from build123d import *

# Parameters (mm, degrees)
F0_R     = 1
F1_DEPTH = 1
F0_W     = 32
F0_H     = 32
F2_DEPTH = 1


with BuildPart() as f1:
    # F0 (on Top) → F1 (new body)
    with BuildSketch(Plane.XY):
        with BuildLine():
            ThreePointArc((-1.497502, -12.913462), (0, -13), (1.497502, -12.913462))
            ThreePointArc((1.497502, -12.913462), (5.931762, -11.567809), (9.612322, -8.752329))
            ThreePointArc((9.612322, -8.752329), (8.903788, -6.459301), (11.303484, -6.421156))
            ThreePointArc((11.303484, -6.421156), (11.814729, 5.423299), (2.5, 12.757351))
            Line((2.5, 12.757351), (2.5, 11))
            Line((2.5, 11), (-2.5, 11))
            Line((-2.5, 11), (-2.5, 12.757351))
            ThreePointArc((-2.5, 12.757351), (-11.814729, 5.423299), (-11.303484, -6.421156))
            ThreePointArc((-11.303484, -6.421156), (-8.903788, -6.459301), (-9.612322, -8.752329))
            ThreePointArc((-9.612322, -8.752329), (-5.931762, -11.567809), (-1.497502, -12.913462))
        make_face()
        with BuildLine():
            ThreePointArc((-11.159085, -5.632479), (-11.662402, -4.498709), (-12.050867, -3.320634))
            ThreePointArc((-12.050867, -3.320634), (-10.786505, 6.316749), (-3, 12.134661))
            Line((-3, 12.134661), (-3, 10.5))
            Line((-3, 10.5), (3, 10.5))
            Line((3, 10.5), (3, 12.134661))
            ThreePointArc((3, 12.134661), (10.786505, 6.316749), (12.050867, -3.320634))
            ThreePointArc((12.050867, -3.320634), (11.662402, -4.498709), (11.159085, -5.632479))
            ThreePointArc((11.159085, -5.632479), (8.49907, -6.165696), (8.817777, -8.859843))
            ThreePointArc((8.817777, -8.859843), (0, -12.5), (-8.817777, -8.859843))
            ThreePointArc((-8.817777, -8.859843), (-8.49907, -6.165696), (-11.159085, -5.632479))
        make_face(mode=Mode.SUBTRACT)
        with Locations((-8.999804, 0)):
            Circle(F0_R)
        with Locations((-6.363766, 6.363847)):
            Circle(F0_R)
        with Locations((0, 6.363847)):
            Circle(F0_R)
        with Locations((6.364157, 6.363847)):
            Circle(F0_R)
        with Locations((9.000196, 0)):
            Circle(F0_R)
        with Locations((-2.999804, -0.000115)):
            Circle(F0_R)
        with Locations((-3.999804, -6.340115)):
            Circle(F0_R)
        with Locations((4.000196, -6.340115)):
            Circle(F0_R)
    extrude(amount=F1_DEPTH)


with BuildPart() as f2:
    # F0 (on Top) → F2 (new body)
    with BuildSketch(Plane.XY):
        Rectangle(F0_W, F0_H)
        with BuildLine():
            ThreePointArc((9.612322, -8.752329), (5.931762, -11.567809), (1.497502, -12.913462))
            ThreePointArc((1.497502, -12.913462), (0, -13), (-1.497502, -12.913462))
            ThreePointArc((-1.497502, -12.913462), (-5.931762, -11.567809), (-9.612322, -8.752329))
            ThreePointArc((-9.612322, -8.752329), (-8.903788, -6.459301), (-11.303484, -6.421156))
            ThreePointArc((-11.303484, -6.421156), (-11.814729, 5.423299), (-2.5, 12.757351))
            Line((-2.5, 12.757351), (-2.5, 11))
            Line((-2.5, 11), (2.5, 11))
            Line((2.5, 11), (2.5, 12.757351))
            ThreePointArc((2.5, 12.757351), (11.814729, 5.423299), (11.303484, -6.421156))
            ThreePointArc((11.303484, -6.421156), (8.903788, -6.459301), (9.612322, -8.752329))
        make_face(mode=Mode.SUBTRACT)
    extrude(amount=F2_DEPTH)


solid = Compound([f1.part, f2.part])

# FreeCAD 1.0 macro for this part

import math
import FreeCAD as App
import Part
import Sketcher
from FreeCAD import Vector
Q = App.Units.Quantity

doc = App.newDocument("Part")
body = doc.addObject("PartDesign::Body", "Body")
body.AllowCompound = True

# Sketch on XY plane
sketch1 = body.newObject("Sketcher::SketchObject", "Sketch")
sketch1.AttachmentSupport = (doc.getObject("XY_Plane"), [""])
sketch1.MapMode = "FlatFace"
sketch1.addGeometry([
    Part.ArcOfCircle(Part.Circle(Vector(0, 0.000075, 0), Vector(0, 0, 1), 13.000075), math.radians(-96.614687), math.radians(-83.385313)),  # 0
    Part.ArcOfCircle(Part.Circle(Vector(-0.000001, -0.000001, 0), Vector(0, 0, 1), 13), math.radians(-83.385271), math.radians(-42.318867)),  # 1
    Part.ArcOfCircle(Part.Circle(Vector(10.11794, -7.340115, 0), Vector(0, 0, 1), 1.5), math.radians(37.78059), math.radians(250.300989)),  # 2
    Part.ArcOfCircle(Part.Circle(Vector(-0.000001, 0, 0), Vector(0, 0, 1), 13), math.radians(-29.599552), math.radians(78.912508)),  # 3
    Part.LineSegment(Vector(2.5, 12.757351, 0), Vector(2.5, 11, 0)),  # 4
    Part.LineSegment(Vector(2.5, 11, 0), Vector(-2.5, 11, 0)),  # 5
    Part.LineSegment(Vector(-2.5, 11, 0), Vector(-2.5, 12.757351, 0)),  # 6
    Part.ArcOfCircle(Part.Circle(Vector(0.000001, 0, 0), Vector(0, 0, 1), 13), math.radians(101.087492), math.radians(209.599552)),  # 7
    Part.ArcOfCircle(Part.Circle(Vector(-10.11794, -7.340115, 0), Vector(0, 0, 1), 1.5), math.radians(-70.300989), math.radians(142.21941)),  # 8
    Part.ArcOfCircle(Part.Circle(Vector(0.000001, -0.000001, 0), Vector(0, 0, 1), 13), math.radians(-137.681133), math.radians(-96.614729)),  # 9
    Part.ArcOfCircle(Part.Circle(Vector(-10.117941, -7.340114, 0), Vector(0, 0, 1), 2), math.radians(-49.452235), math.radians(121.370642)),  # 10
    Part.ArcOfCircle(Part.Circle(Vector(-0.000011, -0.000003, 0), Vector(0, 0, 1), 12.499989), math.radians(-164.594376), math.radians(-153.217909)),  # 11
    Part.ArcOfCircle(Part.Circle(Vector(-0.000001, 0, 0), Vector(0, 0, 1), 12.499999), math.radians(103.886537), math.radians(195.405624)),  # 12
    Part.LineSegment(Vector(-3, 12.134661, 0), Vector(-3, 10.5, 0)),  # 13
    Part.LineSegment(Vector(-3, 10.5, 0), Vector(3, 10.5, 0)),  # 14
    Part.LineSegment(Vector(3, 10.5, 0), Vector(3, 12.134661, 0)),  # 15
    Part.ArcOfCircle(Part.Circle(Vector(0.000001, 0, 0), Vector(0, 0, 1), 12.499999), math.radians(-15.405624), math.radians(76.113463)),  # 16
    Part.ArcOfCircle(Part.Circle(Vector(0.000011, -0.000003, 0), Vector(0, 0, 1), 12.499989), math.radians(-26.782091), math.radians(-15.405624)),  # 17
    Part.ArcOfCircle(Part.Circle(Vector(10.117941, -7.340114, 0), Vector(0, 0, 1), 2), math.radians(58.629358), math.radians(229.452235)),  # 18
    Part.ArcOfCircle(Part.Circle(Vector(0, 0.000001, 0), Vector(0, 0, 1), 12.500001), math.radians(-134.863654), math.radians(-45.136346)),  # 19
    Part.Circle(Vector(-8.999804, 0, 0), Vector(0, 0, 1), 1),  # 20
    Part.Circle(Vector(-6.363766, 6.363847, 0), Vector(0, 0, 1), 1),  # 21
    Part.Circle(Vector(0, 6.363847, 0), Vector(0, 0, 1), 1),  # 22
    Part.Circle(Vector(6.364157, 6.363847, 0), Vector(0, 0, 1), 1),  # 23
    Part.Circle(Vector(9.000196, 0, 0), Vector(0, 0, 1), 1),  # 24
    Part.Circle(Vector(-2.999804, -0.000115, 0), Vector(0, 0, 1), 1),  # 25
    Part.Circle(Vector(-3.999804, -6.340115, 0), Vector(0, 0, 1), 1),  # 26
    Part.Circle(Vector(4.000196, -6.340115, 0), Vector(0, 0, 1), 1),  # 27
], False)
sketch1.addConstraint([
    Sketcher.Constraint("Coincident", 0, 2, 1, 1),
    Sketcher.Constraint("Coincident", 1, 2, 2, 2),
    Sketcher.Constraint("Coincident", 2, 1, 3, 1),
    Sketcher.Constraint("Coincident", 3, 2, 4, 1),
    Sketcher.Constraint("Coincident", 4, 2, 5, 1),
    Sketcher.Constraint("Coincident", 5, 2, 6, 1),
    Sketcher.Constraint("Coincident", 6, 2, 7, 1),
    Sketcher.Constraint("Coincident", 7, 2, 8, 2),
    Sketcher.Constraint("Coincident", 8, 1, 9, 1),
    Sketcher.Constraint("Coincident", 9, 2, 0, 1),
    Sketcher.Constraint("Coincident", 10, 2, 11, 2),
    Sketcher.Constraint("Coincident", 11, 1, 12, 2),
    Sketcher.Constraint("Coincident", 12, 1, 13, 1),
    Sketcher.Constraint("Coincident", 13, 2, 14, 1),
    Sketcher.Constraint("Coincident", 14, 2, 15, 1),
    Sketcher.Constraint("Coincident", 15, 2, 16, 2),
    Sketcher.Constraint("Coincident", 16, 1, 17, 2),
    Sketcher.Constraint("Coincident", 17, 1, 18, 1),
    Sketcher.Constraint("Coincident", 18, 2, 19, 2),
    Sketcher.Constraint("Coincident", 19, 1, 10, 1),
    Sketcher.Constraint("Vertical", 4),
    Sketcher.Constraint("Horizontal", 5),
    Sketcher.Constraint("Vertical", 6),
    Sketcher.Constraint("Vertical", 13),
    Sketcher.Constraint("Horizontal", 14),
    Sketcher.Constraint("Vertical", 15),
    Sketcher.Constraint("Coincident", 1, 3, -1, 1),
    Sketcher.Constraint("Coincident", 3, 3, -1, 1),
    Sketcher.Constraint("Coincident", 7, 3, -1, 1),
    Sketcher.Constraint("Coincident", 9, 3, -1, 1),
    Sketcher.Constraint("Coincident", 12, 3, -1, 1),
    Sketcher.Constraint("Coincident", 16, 3, -1, 1),
    Sketcher.Constraint("Coincident", 19, 3, -1, 1),
    Sketcher.Constraint("Coincident", 10, 3, 8, 3),
    Sketcher.Constraint("Coincident", 18, 3, 2, 3),
    Sketcher.Constraint("PointOnObject", 0, 3, -2),
    Sketcher.Constraint("PointOnObject", 20, 3, -1),
    Sketcher.Constraint("PointOnObject", 22, 3, -2),
    Sketcher.Constraint("PointOnObject", 24, 3, -1),
    Sketcher.Constraint("Diameter", 20, Q("2 mm")),
    Sketcher.Constraint("Diameter", 21, Q("2 mm")),
    Sketcher.Constraint("Diameter", 22, Q("2 mm")),
    Sketcher.Constraint("Diameter", 23, Q("2 mm")),
    Sketcher.Constraint("Diameter", 24, Q("2 mm")),
    Sketcher.Constraint("Diameter", 25, Q("2 mm")),
    Sketcher.Constraint("Diameter", 26, Q("2 mm")),
    Sketcher.Constraint("Diameter", 27, Q("2 mm")),
    Sketcher.Constraint("Radius", 1, Q("13 mm")),
    Sketcher.Constraint("Radius", 3, Q("13 mm")),
    Sketcher.Constraint("Radius", 7, Q("13 mm")),
    Sketcher.Constraint("Radius", 10, Q("2 mm")),
    Sketcher.Constraint("Radius", 18, Q("2 mm")),
    Sketcher.Constraint("Radius", 2, Q("1.5 mm")),
    Sketcher.Constraint("Radius", 8, Q("1.5 mm")),
    Sketcher.Constraint("Radius", 12, Q("12.499999 mm")),
    Sketcher.Constraint("Radius", 16, Q("12.499999 mm")),
    Sketcher.Constraint("Radius", 19, Q("12.500001 mm")),
    Sketcher.Constraint("DistanceX", 5, 2, 5, 1, Q("5 mm")),
    Sketcher.Constraint("DistanceX", 14, 1, 14, 2, Q("6 mm")),
    Sketcher.Constraint("DistanceY", -1, 1, 4, 2, Q("11 mm")),
    Sketcher.Constraint("DistanceX", 12, 1, -1, 1, Q("3 mm")),
    Sketcher.Constraint("DistanceY", 8, 3, 26, 3, Q("1 mm")),
    Sketcher.Constraint("DistanceX", 26, 3, 25, 3, Q("1 mm")),
    Sketcher.Constraint("DistanceY", 2, 3, 27, 3, Q("1 mm")),
    Sketcher.Constraint("DistanceX", -1, 1, 3, 2, Q("2.5 mm")),
    Sketcher.Constraint("DistanceY", -1, 1, 13, 2, Q("10.5 mm")),
    Sketcher.Constraint("Radius", 11, Q("12.499989 mm")),
    Sketcher.Constraint("Radius", 17, Q("12.499989 mm")),
    Sketcher.Constraint("DistanceY", 26, 3, 25, 3, Q("6.34 mm")),
    Sketcher.Constraint("Radius", 0, Q("13.000075 mm")),
    Sketcher.Constraint("DistanceX", 9, 2, -1, 1, Q("1.497502 mm")),
    Sketcher.Constraint("DistanceX", 7, 2, 10, 2, Q("0.144399 mm")),
    Sketcher.Constraint("DistanceX", 17, 1, 2, 1, Q("0.144399 mm")),
    Sketcher.Constraint("DistanceX", -1, 1, 2, 3, Q("10.11794 mm")),
    Sketcher.Constraint("DistanceX", 8, 3, -1, 1, Q("10.11794 mm")),
    Sketcher.Constraint("DistanceX", -1, 1, 1, 2, Q("9.612322 mm")),
    Sketcher.Constraint("DistanceY", 8, 1, -1, 1, Q("8.752329 mm")),
    Sketcher.Constraint("DistanceY", 0, 3, 21, 3, Q("6.363772 mm")),
    Sketcher.Constraint("DistanceY", 0, 3, 22, 3, Q("6.363772 mm")),
    Sketcher.Constraint("DistanceY", 0, 3, 23, 3, Q("6.363772 mm")),
    Sketcher.Constraint("DistanceX", 23, 3, 24, 3, Q("2.636039 mm")),
    Sketcher.Constraint("DistanceX", 0, 2, 2, 3, Q("8.620438 mm")),
    Sketcher.Constraint("DistanceX", 24, 3, 2, 1, Q("2.303288 mm")),
    Sketcher.Constraint("DistanceX", 27, 3, 2, 1, Q("7.303288 mm")),
    Sketcher.Constraint("DistanceX", 7, 2, 20, 3, Q("2.30368 mm")),
    Sketcher.Constraint("DistanceX", 7, 2, 26, 3, Q("7.30368 mm")),
    Sketcher.Constraint("DistanceX", 11, 1, 10, 2, Q("0.891782 mm")),
    Sketcher.Constraint("DistanceY", 2, 1, 16, 1, Q("3.100522 mm")),
    Sketcher.Constraint("DistanceX", 21, 3, -1, 1, Q("6.363766 mm")),
])
pad1 = body.newObject("PartDesign::Pad", "Pad")
pad1.Profile = sketch1
pad1.Length = 1
body2 = doc.addObject("PartDesign::Body", "Body001")

# Sketch on XY plane
sketch2 = body2.newObject("Sketcher::SketchObject", "Sketch001")
sketch2.AttachmentSupport = (doc.getObject("XY_Plane001"), [""])
sketch2.MapMode = "FlatFace"
sketch2.addGeometry([
    Part.LineSegment(Vector(-16, 16, 0), Vector(-16, -16, 0)),  # 0
    Part.LineSegment(Vector(-16, -16, 0), Vector(16, -16, 0)),  # 1
    Part.LineSegment(Vector(16, -16, 0), Vector(16, 16, 0)),  # 2
    Part.LineSegment(Vector(16, 16, 0), Vector(-16, 16, 0)),  # 3
    Part.ArcOfCircle(Part.Circle(Vector(10.11794, -7.340115, 0), Vector(0, 0, 1), 1.5), math.radians(37.78059), math.radians(250.300989)),  # 4
    Part.ArcOfCircle(Part.Circle(Vector(-0.000001, -0.000001, 0), Vector(0, 0, 1), 13), math.radians(-83.385271), math.radians(-42.318867)),  # 5
    Part.ArcOfCircle(Part.Circle(Vector(0, 0.000075, 0), Vector(0, 0, 1), 13.000075), math.radians(-96.614687), math.radians(-83.385313)),  # 6
    Part.ArcOfCircle(Part.Circle(Vector(0.000001, -0.000001, 0), Vector(0, 0, 1), 13), math.radians(-137.681133), math.radians(-96.614729)),  # 7
    Part.ArcOfCircle(Part.Circle(Vector(-10.11794, -7.340115, 0), Vector(0, 0, 1), 1.5), math.radians(-70.300989), math.radians(142.21941)),  # 8
    Part.ArcOfCircle(Part.Circle(Vector(0.000001, 0, 0), Vector(0, 0, 1), 13), math.radians(101.087492), math.radians(209.599552)),  # 9
    Part.LineSegment(Vector(-2.5, 12.757351, 0), Vector(-2.5, 11, 0)),  # 10
    Part.LineSegment(Vector(-2.5, 11, 0), Vector(2.5, 11, 0)),  # 11
    Part.LineSegment(Vector(2.5, 11, 0), Vector(2.5, 12.757351, 0)),  # 12
    Part.ArcOfCircle(Part.Circle(Vector(-0.000001, 0, 0), Vector(0, 0, 1), 13), math.radians(-29.599552), math.radians(78.912508)),  # 13
], False)
sketch2.addConstraint([
    Sketcher.Constraint("Coincident", 0, 2, 1, 1),
    Sketcher.Constraint("Coincident", 1, 2, 2, 1),
    Sketcher.Constraint("Coincident", 2, 2, 3, 1),
    Sketcher.Constraint("Coincident", 3, 2, 0, 1),
    Sketcher.Constraint("Coincident", 4, 2, 5, 2),
    Sketcher.Constraint("Coincident", 5, 1, 6, 2),
    Sketcher.Constraint("Coincident", 6, 1, 7, 2),
    Sketcher.Constraint("Coincident", 7, 1, 8, 1),
    Sketcher.Constraint("Coincident", 8, 2, 9, 2),
    Sketcher.Constraint("Coincident", 9, 1, 10, 1),
    Sketcher.Constraint("Coincident", 10, 2, 11, 1),
    Sketcher.Constraint("Coincident", 11, 2, 12, 1),
    Sketcher.Constraint("Coincident", 12, 2, 13, 2),
    Sketcher.Constraint("Coincident", 13, 1, 4, 1),
    Sketcher.Constraint("Vertical", 0),
    Sketcher.Constraint("Horizontal", 1),
    Sketcher.Constraint("Vertical", 2),
    Sketcher.Constraint("Horizontal", 3),
    Sketcher.Constraint("Vertical", 10),
    Sketcher.Constraint("Horizontal", 11),
    Sketcher.Constraint("Vertical", 12),
    Sketcher.Constraint("Coincident", 5, 3, -1, 1),
    Sketcher.Constraint("Coincident", 7, 3, -1, 1),
    Sketcher.Constraint("Coincident", 9, 3, -1, 1),
    Sketcher.Constraint("Coincident", 13, 3, -1, 1),
    Sketcher.Constraint("PointOnObject", 6, 3, -2),
    Sketcher.Constraint("Radius", 5, Q("13 mm")),
    Sketcher.Constraint("Radius", 9, Q("13 mm")),
    Sketcher.Constraint("Radius", 13, Q("13 mm")),
    Sketcher.Constraint("Radius", 4, Q("1.5 mm")),
    Sketcher.Constraint("Radius", 8, Q("1.5 mm")),
    Sketcher.Constraint("DistanceX", 1, 1, 1, 2, Q("32 mm")),
    Sketcher.Constraint("DistanceX", 11, 1, 11, 2, Q("5 mm")),
    Sketcher.Constraint("DistanceY", 0, 2, 0, 1, Q("32 mm")),
    Sketcher.Constraint("DistanceX", 0, 2, -1, 1, Q("16 mm")),
    Sketcher.Constraint("DistanceY", 0, 2, -1, 1, Q("16 mm")),
    Sketcher.Constraint("DistanceY", -1, 1, 10, 2, Q("11 mm")),
    Sketcher.Constraint("DistanceX", 9, 1, -1, 1, Q("2.5 mm")),
    Sketcher.Constraint("Radius", 6, Q("13.000075 mm")),
    Sketcher.Constraint("DistanceX", -1, 1, 5, 1, Q("1.497502 mm")),
    Sketcher.Constraint("DistanceX", 6, 1, 5, 3, Q("1.497501 mm")),
    Sketcher.Constraint("DistanceX", -1, 1, 4, 3, Q("10.11794 mm")),
    Sketcher.Constraint("DistanceX", 8, 3, -1, 1, Q("10.11794 mm")),
    Sketcher.Constraint("DistanceY", 4, 2, -1, 1, Q("8.752329 mm")),
    Sketcher.Constraint("DistanceX", 7, 1, -1, 1, Q("9.612322 mm")),
])
pad2 = body2.newObject("PartDesign::Pad", "Pad001")
pad2.Profile = sketch2
pad2.Length = 1

doc.recompute()
